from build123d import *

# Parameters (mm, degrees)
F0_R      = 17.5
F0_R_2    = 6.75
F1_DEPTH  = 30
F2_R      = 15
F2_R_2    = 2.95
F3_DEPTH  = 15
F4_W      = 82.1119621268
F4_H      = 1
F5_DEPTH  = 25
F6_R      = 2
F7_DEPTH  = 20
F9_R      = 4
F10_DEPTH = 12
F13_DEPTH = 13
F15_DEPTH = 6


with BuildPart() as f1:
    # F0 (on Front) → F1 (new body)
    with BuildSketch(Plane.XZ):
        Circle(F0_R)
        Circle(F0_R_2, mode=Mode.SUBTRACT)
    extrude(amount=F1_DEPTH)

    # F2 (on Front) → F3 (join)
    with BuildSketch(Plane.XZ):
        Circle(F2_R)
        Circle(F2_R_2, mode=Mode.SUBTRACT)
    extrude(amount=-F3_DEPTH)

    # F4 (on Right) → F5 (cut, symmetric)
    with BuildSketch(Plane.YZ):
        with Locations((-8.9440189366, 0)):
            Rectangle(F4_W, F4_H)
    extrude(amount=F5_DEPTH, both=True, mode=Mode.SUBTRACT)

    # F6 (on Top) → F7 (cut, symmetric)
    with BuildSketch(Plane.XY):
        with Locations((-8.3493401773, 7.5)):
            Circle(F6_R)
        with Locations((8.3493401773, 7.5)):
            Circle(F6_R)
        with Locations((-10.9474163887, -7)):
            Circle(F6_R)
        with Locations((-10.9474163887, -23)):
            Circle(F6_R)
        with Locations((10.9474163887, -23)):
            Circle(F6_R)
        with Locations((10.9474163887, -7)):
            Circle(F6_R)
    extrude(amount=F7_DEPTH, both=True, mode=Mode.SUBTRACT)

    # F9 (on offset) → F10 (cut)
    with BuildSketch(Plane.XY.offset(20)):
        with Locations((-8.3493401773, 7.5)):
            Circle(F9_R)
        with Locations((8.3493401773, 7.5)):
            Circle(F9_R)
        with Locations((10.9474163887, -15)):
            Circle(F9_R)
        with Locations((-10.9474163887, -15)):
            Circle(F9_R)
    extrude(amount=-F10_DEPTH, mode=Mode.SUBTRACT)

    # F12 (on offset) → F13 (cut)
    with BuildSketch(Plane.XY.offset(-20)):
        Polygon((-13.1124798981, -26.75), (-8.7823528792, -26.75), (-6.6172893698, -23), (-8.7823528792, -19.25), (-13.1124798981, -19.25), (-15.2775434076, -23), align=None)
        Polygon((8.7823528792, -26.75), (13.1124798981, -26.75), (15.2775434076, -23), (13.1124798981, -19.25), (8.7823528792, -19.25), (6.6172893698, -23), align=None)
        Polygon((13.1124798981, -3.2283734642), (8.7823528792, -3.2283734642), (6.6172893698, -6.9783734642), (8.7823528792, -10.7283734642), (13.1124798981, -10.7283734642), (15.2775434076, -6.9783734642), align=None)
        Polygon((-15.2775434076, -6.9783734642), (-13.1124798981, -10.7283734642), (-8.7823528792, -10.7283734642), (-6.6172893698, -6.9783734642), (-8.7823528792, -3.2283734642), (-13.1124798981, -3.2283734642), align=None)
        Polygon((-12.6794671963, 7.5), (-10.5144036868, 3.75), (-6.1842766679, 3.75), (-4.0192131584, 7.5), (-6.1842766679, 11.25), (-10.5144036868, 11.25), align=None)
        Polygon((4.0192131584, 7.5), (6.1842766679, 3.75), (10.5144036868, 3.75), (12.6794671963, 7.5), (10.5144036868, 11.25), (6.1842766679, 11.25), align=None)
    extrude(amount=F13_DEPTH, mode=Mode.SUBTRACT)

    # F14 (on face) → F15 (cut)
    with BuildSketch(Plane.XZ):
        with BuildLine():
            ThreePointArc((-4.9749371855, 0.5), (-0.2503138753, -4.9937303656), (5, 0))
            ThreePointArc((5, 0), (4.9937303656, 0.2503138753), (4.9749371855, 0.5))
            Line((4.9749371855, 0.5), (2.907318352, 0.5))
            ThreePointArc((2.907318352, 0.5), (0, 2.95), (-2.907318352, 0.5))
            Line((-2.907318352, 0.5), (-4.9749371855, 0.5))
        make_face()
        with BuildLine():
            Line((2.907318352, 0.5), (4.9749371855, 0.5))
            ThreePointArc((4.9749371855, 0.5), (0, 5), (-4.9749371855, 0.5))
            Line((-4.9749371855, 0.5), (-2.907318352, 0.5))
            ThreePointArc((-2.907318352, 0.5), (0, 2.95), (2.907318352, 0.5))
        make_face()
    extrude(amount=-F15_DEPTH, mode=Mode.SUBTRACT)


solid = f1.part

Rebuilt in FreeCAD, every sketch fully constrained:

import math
import FreeCAD as App
import Part
import Sketcher
Q = App.Units.Quantity

doc = App.newDocument("Part")
params = doc.addObject("Spreadsheet::Sheet", "Params")
for row, (alias, value) in enumerate([
    ("sketch1_diameter", "35 mm"),
    ("sketch1_diameter2", "13.5 mm"),
    ("pad1_length", "30 mm"),
    ("sketch2_diameter", "30 mm"),
    ("sketch2_diameter2", "5.9 mm"),
    ("pad2_length", "15 mm"),
    ("sketch3_height", "1 mm"),
    ("pocket1_length", "50 mm"),
    ("sketch4_diameter", "4 mm"),
    ("pocket2_length", "40 mm"),
    ("sketch5_diameter", "8 mm"),
    ("pocket3_length", "12 mm"),
    ("pocket4_length", "13 mm"),
    ("sketch7_radius", "5 mm"),
    ("pocket5_length", "6 mm"),
], start=1):
    params.set(f"A{row}", alias)
    params.set(f"B{row}", "=" + value)
    params.setAlias(f"B{row}", alias)

body = doc.addObject("PartDesign::Body", "Body")
body.AllowCompound = True

sketch1 = doc.addObject("Sketcher::SketchObject", "Sketch")
body.addObject(sketch1)
sketch1.AttachmentSupport = (doc.XZ_Plane, [""])
sketch1.MapMode = "FlatFace"
sketch1.addGeometry(Part.Circle(App.Vector(0, 0, 0), App.Vector(0, 0, 1), 18), False)
sketch1.addGeometry(Part.Circle(App.Vector(0, 0, 0), App.Vector(0, 0, 1), 7), False)
sketch1.addConstraint(Sketcher.Constraint("Coincident", 0, 3, -1, 1))
sketch1.addConstraint(Sketcher.Constraint("Coincident", 1, 3, -1, 1))
sketch1.addConstraint(Sketcher.Constraint("Diameter", 0, Q("35 mm")))
sketch1.addConstraint(Sketcher.Constraint("Diameter", 1, Q("13.5 mm")))
sketch1.setExpression("Constraints[2]", "Params.sketch1_diameter")
sketch1.setExpression("Constraints[3]", "Params.sketch1_diameter2")
pad1 = doc.addObject("PartDesign::Pad", "Pad")
body.addObject(pad1)
pad1.Profile = sketch1
pad1.setExpression("Length", "Params.pad1_length")

sketch2 = doc.addObject("Sketcher::SketchObject", "Sketch001")
body.addObject(sketch2)
sketch2.AttachmentSupport = (doc.XZ_Plane, [""])
sketch2.MapMode = "FlatFace"
sketch2.addGeometry(Part.Circle(App.Vector(0, 0, 0), App.Vector(0, 0, 1), 15), False)
sketch2.addGeometry(Part.Circle(App.Vector(0, 0, 0), App.Vector(0, 0, 1), 3), False)
sketch2.addConstraint(Sketcher.Constraint("Coincident", 0, 3, -1, 1))
sketch2.addConstraint(Sketcher.Constraint("Coincident", 1, 3, -1, 1))
sketch2.addConstraint(Sketcher.Constraint("Diameter", 0, Q("30 mm")))
sketch2.addConstraint(Sketcher.Constraint("Diameter", 1, Q("5.9 mm")))
sketch2.setExpression("Constraints[2]", "Params.sketch2_diameter")
sketch2.setExpression("Constraints[3]", "Params.sketch2_diameter2")
pad2 = doc.addObject("PartDesign::Pad", "Pad001")
body.addObject(pad2)
pad2.Profile = sketch2
pad2.setExpression("Length", "Params.pad2_length")
pad2.Reversed = True

sketch3 = doc.addObject("Sketcher::SketchObject", "Sketch002")
body.addObject(sketch3)
sketch3.AttachmentSupport = (doc.YZ_Plane, [""])
sketch3.MapMode = "FlatFace"
sketch3.addGeometry(Part.LineSegment(App.Vector(-50, 0.5, 0), App.Vector(-50, -0.5, 0)), False)
sketch3.addGeometry(Part.LineSegment(App.Vector(-50, -0.5, 0), App.Vector(32.1, -0.5, 0)), False)
sketch3.addGeometry(Part.LineSegment(App.Vector(32.1, -0.5, 0), App.Vector(32.1, 0.5, 0)), False)
sketch3.addGeometry(Part.LineSegment(App.Vector(32.1, 0.5, 0), App.Vector(-50, 0.5, 0)), False)
sketch3.addConstraint(Sketcher.Constraint("Coincident", 0, 2, 1, 1))
sketch3.addConstraint(Sketcher.Constraint("Coincident", 1, 2, 2, 1))
sketch3.addConstraint(Sketcher.Constraint("Coincident", 2, 2, 3, 1))
sketch3.addConstraint(Sketcher.Constraint("Coincident", 3, 2, 0, 1))
sketch3.addConstraint(Sketcher.Constraint("Vertical", 0))
sketch3.addConstraint(Sketcher.Constraint("Horizontal", 1))
sketch3.addConstraint(Sketcher.Constraint("Vertical", 2))
sketch3.addConstraint(Sketcher.Constraint("Horizontal", 3))
sketch3.addConstraint(Sketcher.Constraint("DistanceY", 0, 2, 0, 1, Q("1 mm")))
sketch3.addConstraint(Sketcher.Constraint("DistanceX", 0, 2, -1, 1, Q("50 mm")))
sketch3.addConstraint(Sketcher.Constraint("DistanceY", 0, 2, -1, 1, Q("0.5 mm")))
sketch3.addConstraint(Sketcher.Constraint("DistanceX", 1, 1, 1, 2, Q("82.111962 mm")))
sketch3.setExpression("Constraints[8]", "Params.sketch3_height")
pocket1 = doc.addObject("PartDesign::Pocket", "Pocket")
body.addObject(pocket1)
pocket1.Profile = sketch3
pocket1.setExpression("Length", "Params.pocket1_length")
pocket1.Midplane = True

sketch4 = doc.addObject("Sketcher::SketchObject", "Sketch003")
body.addObject(sketch4)
sketch4.AttachmentSupport = (doc.XY_Plane, [""])
sketch4.MapMode = "FlatFace"
sketch4.addGeometry(Part.Circle(App.Vector(-8.3, 7.5, 0), App.Vector(0, 0, 1), 2), False)
sketch4.addGeometry(Part.Circle(App.Vector(8.3, 7.5, 0), App.Vector(0, 0, 1), 2), False)
sketch4.addGeometry(Part.Circle(App.Vector(-10.9, -7, 0), App.Vector(0, 0, 1), 2), False)
sketch4.addGeometry(Part.Circle(App.Vector(-10.9, -23, 0), App.Vector(0, 0, 1), 2), False)
sketch4.addGeometry(Part.Circle(App.Vector(10.9, -23, 0), App.Vector(0, 0, 1), 2), False)
sketch4.addGeometry(Part.Circle(App.Vector(10.9, -7, 0), App.Vector(0, 0, 1), 2), False)
sketch4.addConstraint(Sketcher.Constraint("Equal", 0, 1))
sketch4.addConstraint(Sketcher.Constraint("Equal", 1, 2))
sketch4.addConstraint(Sketcher.Constraint("Equal", 2, 3))
sketch4.addConstraint(Sketcher.Constraint("Equal", 3, 4))
sketch4.addConstraint(Sketcher.Constraint("Equal", 4, 5))
sketch4.addConstraint(Sketcher.Constraint("Symmetric", 0, 3, 1, 3, -2))
sketch4.addConstraint(Sketcher.Constraint("Symmetric", 3, 3, 4, 3, -2))
sketch4.addConstraint(Sketcher.Constraint("Symmetric", 2, 3, 5, 3, -2))
sketch4.addConstraint(Sketcher.Constraint("Vertical", 2, 3, 3, 3))
sketch4.addConstraint(Sketcher.Constraint("Diameter", 0, Q("4 mm")))
sketch4.addConstraint(Sketcher.Constraint("DistanceY", 2, 3, -1, 1, Q("7 mm")))
sketch4.addConstraint(Sketcher.Constraint("DistanceY", 3, 3, -1, 1, Q("23 mm")))
sketch4.addConstraint(Sketcher.Constraint("DistanceY", -1, 1, 0, 3, Q("7.5 mm")))
sketch4.addConstraint(Sketcher.Constraint("DistanceX", 0, 3, -1, 1, Q("8.34934 mm")))
sketch4.addConstraint(Sketcher.Constraint("DistanceX", 2, 3, -1, 1, Q("10.947416 mm")))
sketch4.setExpression("Constraints[9]", "Params.sketch4_diameter")
pocket2 = doc.addObject("PartDesign::Pocket", "Pocket001")
body.addObject(pocket2)
pocket2.Profile = sketch4
pocket2.setExpression("Length", "Params.pocket2_length")
pocket2.Midplane = True

sketch5 = doc.addObject("Sketcher::SketchObject", "Sketch004")
body.addObject(sketch5)
sketch5.AttachmentSupport = (doc.XY_Plane, [""])
sketch5.MapMode = "FlatFace"
sketch5.AttachmentOffset = App.Placement(App.Vector(0, 0, 20), App.Rotation())
sketch5.addGeometry(Part.Circle(App.Vector(-8.3, 7.5, 0), App.Vector(0, 0, 1), 4), False)
sketch5.addGeometry(Part.Circle(App.Vector(8.3, 7.5, 0), App.Vector(0, 0, 1), 4), False)
sketch5.addGeometry(Part.Circle(App.Vector(10.9, -15, 0), App.Vector(0, 0, 1), 4), False)
sketch5.addGeometry(Part.Circle(App.Vector(-10.9, -15, 0), App.Vector(0, 0, 1), 4), False)
sketch5.addConstraint(Sketcher.Constraint("Equal", 0, 1))
sketch5.addConstraint(Sketcher.Constraint("Equal", 1, 2))
sketch5.addConstraint(Sketcher.Constraint("Equal", 2, 3))
sketch5.addConstraint(Sketcher.Constraint("Symmetric", 0, 3, 1, 3, -2))
sketch5.addConstraint(Sketcher.Constraint("Symmetric", 2, 3, 3, 3, -2))
sketch5.addConstraint(Sketcher.Constraint("Diameter", 0, Q("8 mm")))
sketch5.addConstraint(Sketcher.Constraint("DistanceY", 2, 3, -1, 1, Q("15 mm")))
sketch5.addConstraint(Sketcher.Constraint("DistanceY", -1, 1, 0, 3, Q("7.5 mm")))
sketch5.addConstraint(Sketcher.Constraint("DistanceX", 0, 3, -1, 1, Q("8.34934 mm")))
sketch5.addConstraint(Sketcher.Constraint("DistanceX", -1, 1, 2, 3, Q("10.947416 mm")))
sketch5.setExpression("Constraints[5]", "Params.sketch5_diameter")
pocket3 = doc.addObject("PartDesign::Pocket", "Pocket002")
body.addObject(pocket3)
pocket3.Profile = sketch5
pocket3.setExpression("Length", "Params.pocket3_length")

sketch6 = doc.addObject("Sketcher::SketchObject", "Sketch005")
body.addObject(sketch6)
sketch6.AttachmentSupport = (doc.XY_Plane, [""])
sketch6.MapMode = "FlatFace"
sketch6.AttachmentOffset = App.Placement(App.Vector(0, 0, -20), App.Rotation())
sketch6.addGeometry(Part.LineSegment(App.Vector(-13.1, -26.8, 0), App.Vector(-8.8, -26.8, 0)), False)
sketch6.addGeometry(Part.LineSegment(App.Vector(-8.8, -26.8, 0), App.Vector(-6.6, -23, 0)), False)
sketch6.addGeometry(Part.LineSegment(App.Vector(-6.6, -23, 0), App.Vector(-8.8, -19.2, 0)), False)
sketch6.addGeometry(Part.LineSegment(App.Vector(-8.8, -19.2, 0), App.Vector(-13.1, -19.2, 0)), False)
sketch6.addGeometry(Part.LineSegment(App.Vector(-13.1, -19.2, 0), App.Vector(-15.3, -23, 0)), False)
sketch6.addGeometry(Part.LineSegment(App.Vector(-15.3, -23, 0), App.Vector(-13.1, -26.8, 0)), False)
sketch6.addGeometry(Part.LineSegment(App.Vector(8.8, -26.8, 0), App.Vector(13.1, -26.8, 0)), False)
sketch6.addGeometry(Part.LineSegment(App.Vector(13.1, -26.8, 0), App.Vector(15.3, -23, 0)), False)
sketch6.addGeometry(Part.LineSegment(App.Vector(15.3, -23, 0), App.Vector(13.1, -19.2, 0)), False)
sketch6.addGeometry(Part.LineSegment(App.Vector(13.1, -19.2, 0), App.Vector(8.8, -19.2, 0)), False)
sketch6.addGeometry(Part.LineSegment(App.Vector(8.8, -19.2, 0), App.Vector(6.6, -23, 0)), False)
sketch6.addGeometry(Part.LineSegment(App.Vector(6.6, -23, 0), App.Vector(8.8, -26.8, 0)), False)
sketch6.addGeometry(Part.LineSegment(App.Vector(13.1, -3.2, 0), App.Vector(8.8, -3.2, 0)), False)
sketch6.addGeometry(Part.LineSegment(App.Vector(8.8, -3.2, 0), App.Vector(6.6, -7, 0)), False)
sketch6.addGeometry(Part.LineSegment(App.Vector(6.6, -7, 0), App.Vector(8.8, -10.7, 0)), False)
sketch6.addGeometry(Part.LineSegment(App.Vector(8.8, -10.7, 0), App.Vector(13.1, -10.7, 0)), False)
sketch6.addGeometry(Part.LineSegment(App.Vector(13.1, -10.7, 0), App.Vector(15.3, -7, 0)), False)
sketch6.addGeometry(Part.LineSegment(App.Vector(15.3, -7, 0), App.Vector(13.1, -3.2, 0)), False)
sketch6.addGeometry(Part.LineSegment(App.Vector(-15.3, -7, 0), App.Vector(-13.1, -10.7, 0)), False)
sketch6.addGeometry(Part.LineSegment(App.Vector(-13.1, -10.7, 0), App.Vector(-8.8, -10.7, 0)), False)
sketch6.addGeometry(Part.LineSegment(App.Vector(-8.8, -10.7, 0), App.Vector(-6.6, -7, 0)), False)
sketch6.addGeometry(Part.LineSegment(App.Vector(-6.6, -7, 0), App.Vector(-8.8, -3.2, 0)), False)
sketch6.addGeometry(Part.LineSegment(App.Vector(-8.8, -3.2, 0), App.Vector(-13.1, -3.2, 0)), False)
sketch6.addGeometry(Part.LineSegment(App.Vector(-13.1, -3.2, 0), App.Vector(-15.3, -7, 0)), False)
sketch6.addGeometry(Part.LineSegment(App.Vector(-12.7, 7.5, 0), App.Vector(-10.5, 3.8, 0)), False)
sketch6.addGeometry(Part.LineSegment(App.Vector(-10.5, 3.8, 0), App.Vector(-6.2, 3.8, 0)), False)
sketch6.addGeometry(Part.LineSegment(App.Vector(-6.2, 3.8, 0), App.Vector(-4, 7.5, 0)), False)
sketch6.addGeometry(Part.LineSegment(App.Vector(-4, 7.5, 0), App.Vector(-6.2, 11.2, 0)), False)
sketch6.addGeometry(Part.LineSegment(App.Vector(-6.2, 11.2, 0), App.Vector(-10.5, 11.2, 0)), False)
sketch6.addGeometry(Part.LineSegment(App.Vector(-10.5, 11.2, 0), App.Vector(-12.7, 7.5, 0)), False)
sketch6.addGeometry(Part.LineSegment(App.Vector(4, 7.5, 0), App.Vector(6.2, 3.8, 0)), False)
sketch6.addGeometry(Part.LineSegment(App.Vector(6.2, 3.8, 0), App.Vector(10.5, 3.8, 0)), False)
sketch6.addGeometry(Part.LineSegment(App.Vector(10.5, 3.8, 0), App.Vector(12.7, 7.5, 0)), False)
sketch6.addGeometry(Part.LineSegment(App.Vector(12.7, 7.5, 0), App.Vector(10.5, 11.2, 0)), False)
sketch6.addGeometry(Part.LineSegment(App.Vector(10.5, 11.2, 0), App.Vector(6.2, 11.2, 0)), False)
sketch6.addGeometry(Part.LineSegment(App.Vector(6.2, 11.2, 0), App.Vector(4, 7.5, 0)), False)
sketch6.addConstraint(Sketcher.Constraint("Coincident", 0, 2, 1, 1))
sketch6.addConstraint(Sketcher.Constraint("Coincident", 1, 2, 2, 1))
sketch6.addConstraint(Sketcher.Constraint("Coincident", 2, 2, 3, 1))
sketch6.addConstraint(Sketcher.Constraint("Coincident", 3, 2, 4, 1))
sketch6.addConstraint(Sketcher.Constraint("Coincident", 4, 2, 5, 1))
sketch6.addConstraint(Sketcher.Constraint("Coincident", 5, 2, 0, 1))
sketch6.addConstraint(Sketcher.Constraint("Coincident", 6, 2, 7, 1))
sketch6.addConstraint(Sketcher.Constraint("Coincident", 7, 2, 8, 1))
sketch6.addConstraint(Sketcher.Constraint("Coincident", 8, 2, 9, 1))
sketch6.addConstraint(Sketcher.Constraint("Coincident", 9, 2, 10, 1))
sketch6.addConstraint(Sketcher.Constraint("Coincident", 10, 2, 11, 1))
sketch6.addConstraint(Sketcher.Constraint("Coincident", 11, 2, 6, 1))
sketch6.addConstraint(Sketcher.Constraint("Coincident", 12, 2, 13, 1))
sketch6.addConstraint(Sketcher.Constraint("Coincident", 13, 2, 14, 1))
sketch6.addConstraint(Sketcher.Constraint("Coincident", 14, 2, 15, 1))
sketch6.addConstraint(Sketcher.Constraint("Coincident", 15, 2, 16, 1))
sketch6.addConstraint(Sketcher.Constraint("Coincident", 16, 2, 17, 1))
sketch6.addConstraint(Sketcher.Constraint("Coincident", 17, 2, 12, 1))
sketch6.addConstraint(Sketcher.Constraint("Coincident", 18, 2, 19, 1))
sketch6.addConstraint(Sketcher.Constraint("Coincident", 19, 2, 20, 1))
sketch6.addConstraint(Sketcher.Constraint("Coincident", 20, 2, 21, 1))
sketch6.addConstraint(Sketcher.Constraint("Coincident", 21, 2, 22, 1))
sketch6.addConstraint(Sketcher.Constraint("Coincident", 22, 2, 23, 1))
sketch6.addConstraint(Sketcher.Constraint("Coincident", 23, 2, 18, 1))
sketch6.addConstraint(Sketcher.Constraint("Coincident", 24, 2, 25, 1))
sketch6.addConstraint(Sketcher.Constraint("Coincident", 25, 2, 26, 1))
sketch6.addConstraint(Sketcher.Constraint("Coincident", 26, 2, 27, 1))
sketch6.addConstraint(Sketcher.Constraint("Coincident", 27, 2, 28, 1))
sketch6.addConstraint(Sketcher.Constraint("Coincident", 28, 2, 29, 1))
sketch6.addConstraint(Sketcher.Constraint("Coincident", 29, 2, 24, 1))
sketch6.addConstraint(Sketcher.Constraint("Coincident", 30, 2, 31, 1))
sketch6.addConstraint(Sketcher.Constraint("Coincident", 31, 2, 32, 1))
sketch6.addConstraint(Sketcher.Constraint("Coincident", 32, 2, 33, 1))
sketch6.addConstraint(Sketcher.Constraint("Coincident", 33, 2, 34, 1))
sketch6.addConstraint(Sketcher.Constraint("Coincident", 34, 2, 35, 1))
sketch6.addConstraint(Sketcher.Constraint("Coincident", 35, 2, 30, 1))
sketch6.addConstraint(Sketcher.Constraint("Horizontal", 0))
sketch6.addConstraint(Sketcher.Constraint("Horizontal", 3))
sketch6.addConstraint(Sketcher.Constraint("Horizontal", 6))
sketch6.addConstraint(Sketcher.Constraint("Horizontal", 9))
sketch6.addConstraint(Sketcher.Constraint("Horizontal", 12))
sketch6.addConstraint(Sketcher.Constraint("Horizontal", 15))
sketch6.addConstraint(Sketcher.Constraint("Horizontal", 19))
sketch6.addConstraint(Sketcher.Constraint("Horizontal", 22))
sketch6.addConstraint(Sketcher.Constraint("Horizontal", 25))
sketch6.addConstraint(Sketcher.Constraint("Horizontal", 28))
sketch6.addConstraint(Sketcher.Constraint("Horizontal", 31))
sketch6.addConstraint(Sketcher.Constraint("Horizontal", 34))
sketch6.addConstraint(Sketcher.Constraint("Symmetric", 5, 2, 6, 2, -2))
sketch6.addConstraint(Sketcher.Constraint("Symmetric", 4, 2, 7, 2, -2))
sketch6.addConstraint(Sketcher.Constraint("Symmetric", 3, 2, 8, 2, -2))
sketch6.addConstraint(Sketcher.Constraint("Symmetric", 1, 2, 10, 2, -2))
sketch6.addConstraint(Sketcher.Constraint("Symmetric", 15, 2, 18, 2, -2))
sketch6.addConstraint(Sketcher.Constraint("Symmetric", 13, 2, 20, 2, -2))
sketch6.addConstraint(Sketcher.Constraint("Symmetric", 12, 2, 21, 2, -2))
sketch6.addConstraint(Sketcher.Constraint("Symmetric", 16, 2, 23, 2, -2))
sketch6.addConstraint(Sketcher.Constraint("Symmetric", 25, 2, 30, 2, -2))
sketch6.addConstraint(Sketcher.Constraint("Symmetric", 29, 2, 32, 2, -2))
sketch6.addConstraint(Sketcher.Constraint("Symmetric", 28, 2, 33, 2, -2))
sketch6.addConstraint(Sketcher.Constraint("Symmetric", 26, 2, 35, 2, -2))
sketch6.addConstraint(Sketcher.Constraint("Parallel", 1, 4))
sketch6.addConstraint(Sketcher.Constraint("Parallel", 2, 5))
sketch6.addConstraint(Sketcher.Constraint("Parallel", 4, 7))
sketch6.addConstraint(Sketcher.Constraint("Parallel", 7, 10))
sketch6.addConstraint(Sketcher.Constraint("Parallel", 8, 11))
sketch6.addConstraint(Sketcher.Constraint("Parallel", 10, 13))
sketch6.addConstraint(Sketcher.Constraint("Parallel", 11, 14))
sketch6.addConstraint(Sketcher.Constraint("Parallel", 13, 16))
sketch6.addConstraint(Sketcher.Constraint("Parallel", 14, 17))
sketch6.addConstraint(Sketcher.Constraint("Parallel", 16, 20))
sketch6.addConstraint(Sketcher.Constraint("Parallel", 20, 23))
sketch6.addConstraint(Sketcher.Constraint("Parallel", 21, 24))
sketch6.addConstraint(Sketcher.Constraint("Parallel", 23, 26))
sketch6.addConstraint(Sketcher.Constraint("Parallel", 24, 27))
sketch6.addConstraint(Sketcher.Constraint("Parallel", 26, 29))
sketch6.addConstraint(Sketcher.Constraint("Parallel", 29, 32))
sketch6.addConstraint(Sketcher.Constraint("Parallel", 32, 35))
sketch6.addConstraint(Sketcher.Constraint("Horizontal", 1, 2, 4, 2))
sketch6.addConstraint(Sketcher.Constraint("Horizontal", 13, 2, 16, 2))
sketch6.addConstraint(Sketcher.Constraint("Horizontal", 26, 2, 29, 2))
sketch6.addConstraint(Sketcher.Constraint("Vertical", 0, 2, 2, 2))
sketch6.addConstraint(Sketcher.Constraint("Vertical", 11, 2, 12, 2))
sketch6.addConstraint(Sketcher.Constraint("Vertical", 10, 2, 13, 2))
sketch6.addConstraint(Sketcher.Constraint("Vertical", 12, 2, 14, 2))
sketch6.addConstraint(Sketcher.Constraint("Vertical", 8, 2, 15, 2))
sketch6.addConstraint(Sketcher.Constraint("Vertical", 25, 2, 27, 2))
sketch6.addConstraint(Sketcher.Constraint("Equal", 22, 25))
sketch6.addConstraint(Sketcher.Constraint("Equal", 23, 24))
sketch6.addConstraint(Sketcher.Constraint("Angle", 1, Q("60 deg")))
sketch6.addConstraint(Sketcher.Constraint("DistanceY", 1, 2, -1, 1, Q("23 mm")))
sketch6.addConstraint(Sketcher.Constraint("DistanceY", -1, 1, 26, 2, Q("7.5 mm")))
sketch6.addConstraint(Sketcher.Constraint("DistanceY", 0, 2, 2, 2, Q("7.5 mm")))
sketch6.addConstraint(Sketcher.Constraint("DistanceX", 0, 1, 0, 2, Q("4.330127 mm")))
sketch6.addConstraint(Sketcher.Constraint("DistanceX", 1, 2, -1, 1, Q("6.617289 mm")))
sketch6.addConstraint(Sketcher.Constraint("DistanceX", 24, 2, 21, 2, Q("1.732051 mm")))
sketch6.addConstraint(Sketcher.Constraint("DistanceY", 12, 2, -1, 1, Q("3.228373 mm")))
pocket4 = doc.addObject("PartDesign::Pocket", "Pocket003")
body.addObject(pocket4)
pocket4.Profile = sketch6
pocket4.setExpression("Length", "Params.pocket4_length")
pocket4.Reversed = True

sketch7 = doc.addObject("Sketcher::SketchObject", "Sketch006")
body.addObject(sketch7)
sketch7.AttachmentSupport = (doc.XZ_Plane, [""])
sketch7.MapMode = "FlatFace"
sketch7.addGeometry(Part.ArcOfCircle(Part.Circle(App.Vector(0, 0, 0), App.Vector(0, 0, 1), 5), math.radians(174), math.radians(360)), False)
sketch7.addGeometry(Part.ArcOfCircle(Part.Circle(App.Vector(0, 0, 0), App.Vector(0, 0, 1), 5), math.radians(0), math.radians(5.74)), False)
sketch7.addGeometry(Part.ArcOfCircle(Part.Circle(App.Vector(0, 0, 0), App.Vector(0, 0, 1), 5), math.radians(6), math.radians(174)), False)
sketch7.addConstraint(Sketcher.Constraint("Tangent", 0, 2, 1, 1))
sketch7.addConstraint(Sketcher.Constraint("Tangent", 1, 2, 2, 1))
sketch7.addConstraint(Sketcher.Constraint("Tangent", 2, 2, 0, 1))
sketch7.addConstraint(Sketcher.Constraint("Coincident", 0, 3, -1, 1))
sketch7.addConstraint(Sketcher.Constraint("PointOnObject", 0, 2, -1))
sketch7.addConstraint(Sketcher.Constraint("Horizontal", 1, 2, 2, 2))
sketch7.addConstraint(Sketcher.Constraint("Radius", 0, Q("5 mm")))
sketch7.addConstraint(Sketcher.Constraint("DistanceY", -1, 1, 1, 2, Q("0.5 mm")))
sketch7.setExpression("Constraints[6]", "Params.sketch7_radius")
pocket5 = doc.addObject("PartDesign::Pocket", "Pocket004")
body.addObject(pocket5)
pocket5.Profile = sketch7
pocket5.setExpression("Length", "Params.pocket5_length")

doc.recompute()
